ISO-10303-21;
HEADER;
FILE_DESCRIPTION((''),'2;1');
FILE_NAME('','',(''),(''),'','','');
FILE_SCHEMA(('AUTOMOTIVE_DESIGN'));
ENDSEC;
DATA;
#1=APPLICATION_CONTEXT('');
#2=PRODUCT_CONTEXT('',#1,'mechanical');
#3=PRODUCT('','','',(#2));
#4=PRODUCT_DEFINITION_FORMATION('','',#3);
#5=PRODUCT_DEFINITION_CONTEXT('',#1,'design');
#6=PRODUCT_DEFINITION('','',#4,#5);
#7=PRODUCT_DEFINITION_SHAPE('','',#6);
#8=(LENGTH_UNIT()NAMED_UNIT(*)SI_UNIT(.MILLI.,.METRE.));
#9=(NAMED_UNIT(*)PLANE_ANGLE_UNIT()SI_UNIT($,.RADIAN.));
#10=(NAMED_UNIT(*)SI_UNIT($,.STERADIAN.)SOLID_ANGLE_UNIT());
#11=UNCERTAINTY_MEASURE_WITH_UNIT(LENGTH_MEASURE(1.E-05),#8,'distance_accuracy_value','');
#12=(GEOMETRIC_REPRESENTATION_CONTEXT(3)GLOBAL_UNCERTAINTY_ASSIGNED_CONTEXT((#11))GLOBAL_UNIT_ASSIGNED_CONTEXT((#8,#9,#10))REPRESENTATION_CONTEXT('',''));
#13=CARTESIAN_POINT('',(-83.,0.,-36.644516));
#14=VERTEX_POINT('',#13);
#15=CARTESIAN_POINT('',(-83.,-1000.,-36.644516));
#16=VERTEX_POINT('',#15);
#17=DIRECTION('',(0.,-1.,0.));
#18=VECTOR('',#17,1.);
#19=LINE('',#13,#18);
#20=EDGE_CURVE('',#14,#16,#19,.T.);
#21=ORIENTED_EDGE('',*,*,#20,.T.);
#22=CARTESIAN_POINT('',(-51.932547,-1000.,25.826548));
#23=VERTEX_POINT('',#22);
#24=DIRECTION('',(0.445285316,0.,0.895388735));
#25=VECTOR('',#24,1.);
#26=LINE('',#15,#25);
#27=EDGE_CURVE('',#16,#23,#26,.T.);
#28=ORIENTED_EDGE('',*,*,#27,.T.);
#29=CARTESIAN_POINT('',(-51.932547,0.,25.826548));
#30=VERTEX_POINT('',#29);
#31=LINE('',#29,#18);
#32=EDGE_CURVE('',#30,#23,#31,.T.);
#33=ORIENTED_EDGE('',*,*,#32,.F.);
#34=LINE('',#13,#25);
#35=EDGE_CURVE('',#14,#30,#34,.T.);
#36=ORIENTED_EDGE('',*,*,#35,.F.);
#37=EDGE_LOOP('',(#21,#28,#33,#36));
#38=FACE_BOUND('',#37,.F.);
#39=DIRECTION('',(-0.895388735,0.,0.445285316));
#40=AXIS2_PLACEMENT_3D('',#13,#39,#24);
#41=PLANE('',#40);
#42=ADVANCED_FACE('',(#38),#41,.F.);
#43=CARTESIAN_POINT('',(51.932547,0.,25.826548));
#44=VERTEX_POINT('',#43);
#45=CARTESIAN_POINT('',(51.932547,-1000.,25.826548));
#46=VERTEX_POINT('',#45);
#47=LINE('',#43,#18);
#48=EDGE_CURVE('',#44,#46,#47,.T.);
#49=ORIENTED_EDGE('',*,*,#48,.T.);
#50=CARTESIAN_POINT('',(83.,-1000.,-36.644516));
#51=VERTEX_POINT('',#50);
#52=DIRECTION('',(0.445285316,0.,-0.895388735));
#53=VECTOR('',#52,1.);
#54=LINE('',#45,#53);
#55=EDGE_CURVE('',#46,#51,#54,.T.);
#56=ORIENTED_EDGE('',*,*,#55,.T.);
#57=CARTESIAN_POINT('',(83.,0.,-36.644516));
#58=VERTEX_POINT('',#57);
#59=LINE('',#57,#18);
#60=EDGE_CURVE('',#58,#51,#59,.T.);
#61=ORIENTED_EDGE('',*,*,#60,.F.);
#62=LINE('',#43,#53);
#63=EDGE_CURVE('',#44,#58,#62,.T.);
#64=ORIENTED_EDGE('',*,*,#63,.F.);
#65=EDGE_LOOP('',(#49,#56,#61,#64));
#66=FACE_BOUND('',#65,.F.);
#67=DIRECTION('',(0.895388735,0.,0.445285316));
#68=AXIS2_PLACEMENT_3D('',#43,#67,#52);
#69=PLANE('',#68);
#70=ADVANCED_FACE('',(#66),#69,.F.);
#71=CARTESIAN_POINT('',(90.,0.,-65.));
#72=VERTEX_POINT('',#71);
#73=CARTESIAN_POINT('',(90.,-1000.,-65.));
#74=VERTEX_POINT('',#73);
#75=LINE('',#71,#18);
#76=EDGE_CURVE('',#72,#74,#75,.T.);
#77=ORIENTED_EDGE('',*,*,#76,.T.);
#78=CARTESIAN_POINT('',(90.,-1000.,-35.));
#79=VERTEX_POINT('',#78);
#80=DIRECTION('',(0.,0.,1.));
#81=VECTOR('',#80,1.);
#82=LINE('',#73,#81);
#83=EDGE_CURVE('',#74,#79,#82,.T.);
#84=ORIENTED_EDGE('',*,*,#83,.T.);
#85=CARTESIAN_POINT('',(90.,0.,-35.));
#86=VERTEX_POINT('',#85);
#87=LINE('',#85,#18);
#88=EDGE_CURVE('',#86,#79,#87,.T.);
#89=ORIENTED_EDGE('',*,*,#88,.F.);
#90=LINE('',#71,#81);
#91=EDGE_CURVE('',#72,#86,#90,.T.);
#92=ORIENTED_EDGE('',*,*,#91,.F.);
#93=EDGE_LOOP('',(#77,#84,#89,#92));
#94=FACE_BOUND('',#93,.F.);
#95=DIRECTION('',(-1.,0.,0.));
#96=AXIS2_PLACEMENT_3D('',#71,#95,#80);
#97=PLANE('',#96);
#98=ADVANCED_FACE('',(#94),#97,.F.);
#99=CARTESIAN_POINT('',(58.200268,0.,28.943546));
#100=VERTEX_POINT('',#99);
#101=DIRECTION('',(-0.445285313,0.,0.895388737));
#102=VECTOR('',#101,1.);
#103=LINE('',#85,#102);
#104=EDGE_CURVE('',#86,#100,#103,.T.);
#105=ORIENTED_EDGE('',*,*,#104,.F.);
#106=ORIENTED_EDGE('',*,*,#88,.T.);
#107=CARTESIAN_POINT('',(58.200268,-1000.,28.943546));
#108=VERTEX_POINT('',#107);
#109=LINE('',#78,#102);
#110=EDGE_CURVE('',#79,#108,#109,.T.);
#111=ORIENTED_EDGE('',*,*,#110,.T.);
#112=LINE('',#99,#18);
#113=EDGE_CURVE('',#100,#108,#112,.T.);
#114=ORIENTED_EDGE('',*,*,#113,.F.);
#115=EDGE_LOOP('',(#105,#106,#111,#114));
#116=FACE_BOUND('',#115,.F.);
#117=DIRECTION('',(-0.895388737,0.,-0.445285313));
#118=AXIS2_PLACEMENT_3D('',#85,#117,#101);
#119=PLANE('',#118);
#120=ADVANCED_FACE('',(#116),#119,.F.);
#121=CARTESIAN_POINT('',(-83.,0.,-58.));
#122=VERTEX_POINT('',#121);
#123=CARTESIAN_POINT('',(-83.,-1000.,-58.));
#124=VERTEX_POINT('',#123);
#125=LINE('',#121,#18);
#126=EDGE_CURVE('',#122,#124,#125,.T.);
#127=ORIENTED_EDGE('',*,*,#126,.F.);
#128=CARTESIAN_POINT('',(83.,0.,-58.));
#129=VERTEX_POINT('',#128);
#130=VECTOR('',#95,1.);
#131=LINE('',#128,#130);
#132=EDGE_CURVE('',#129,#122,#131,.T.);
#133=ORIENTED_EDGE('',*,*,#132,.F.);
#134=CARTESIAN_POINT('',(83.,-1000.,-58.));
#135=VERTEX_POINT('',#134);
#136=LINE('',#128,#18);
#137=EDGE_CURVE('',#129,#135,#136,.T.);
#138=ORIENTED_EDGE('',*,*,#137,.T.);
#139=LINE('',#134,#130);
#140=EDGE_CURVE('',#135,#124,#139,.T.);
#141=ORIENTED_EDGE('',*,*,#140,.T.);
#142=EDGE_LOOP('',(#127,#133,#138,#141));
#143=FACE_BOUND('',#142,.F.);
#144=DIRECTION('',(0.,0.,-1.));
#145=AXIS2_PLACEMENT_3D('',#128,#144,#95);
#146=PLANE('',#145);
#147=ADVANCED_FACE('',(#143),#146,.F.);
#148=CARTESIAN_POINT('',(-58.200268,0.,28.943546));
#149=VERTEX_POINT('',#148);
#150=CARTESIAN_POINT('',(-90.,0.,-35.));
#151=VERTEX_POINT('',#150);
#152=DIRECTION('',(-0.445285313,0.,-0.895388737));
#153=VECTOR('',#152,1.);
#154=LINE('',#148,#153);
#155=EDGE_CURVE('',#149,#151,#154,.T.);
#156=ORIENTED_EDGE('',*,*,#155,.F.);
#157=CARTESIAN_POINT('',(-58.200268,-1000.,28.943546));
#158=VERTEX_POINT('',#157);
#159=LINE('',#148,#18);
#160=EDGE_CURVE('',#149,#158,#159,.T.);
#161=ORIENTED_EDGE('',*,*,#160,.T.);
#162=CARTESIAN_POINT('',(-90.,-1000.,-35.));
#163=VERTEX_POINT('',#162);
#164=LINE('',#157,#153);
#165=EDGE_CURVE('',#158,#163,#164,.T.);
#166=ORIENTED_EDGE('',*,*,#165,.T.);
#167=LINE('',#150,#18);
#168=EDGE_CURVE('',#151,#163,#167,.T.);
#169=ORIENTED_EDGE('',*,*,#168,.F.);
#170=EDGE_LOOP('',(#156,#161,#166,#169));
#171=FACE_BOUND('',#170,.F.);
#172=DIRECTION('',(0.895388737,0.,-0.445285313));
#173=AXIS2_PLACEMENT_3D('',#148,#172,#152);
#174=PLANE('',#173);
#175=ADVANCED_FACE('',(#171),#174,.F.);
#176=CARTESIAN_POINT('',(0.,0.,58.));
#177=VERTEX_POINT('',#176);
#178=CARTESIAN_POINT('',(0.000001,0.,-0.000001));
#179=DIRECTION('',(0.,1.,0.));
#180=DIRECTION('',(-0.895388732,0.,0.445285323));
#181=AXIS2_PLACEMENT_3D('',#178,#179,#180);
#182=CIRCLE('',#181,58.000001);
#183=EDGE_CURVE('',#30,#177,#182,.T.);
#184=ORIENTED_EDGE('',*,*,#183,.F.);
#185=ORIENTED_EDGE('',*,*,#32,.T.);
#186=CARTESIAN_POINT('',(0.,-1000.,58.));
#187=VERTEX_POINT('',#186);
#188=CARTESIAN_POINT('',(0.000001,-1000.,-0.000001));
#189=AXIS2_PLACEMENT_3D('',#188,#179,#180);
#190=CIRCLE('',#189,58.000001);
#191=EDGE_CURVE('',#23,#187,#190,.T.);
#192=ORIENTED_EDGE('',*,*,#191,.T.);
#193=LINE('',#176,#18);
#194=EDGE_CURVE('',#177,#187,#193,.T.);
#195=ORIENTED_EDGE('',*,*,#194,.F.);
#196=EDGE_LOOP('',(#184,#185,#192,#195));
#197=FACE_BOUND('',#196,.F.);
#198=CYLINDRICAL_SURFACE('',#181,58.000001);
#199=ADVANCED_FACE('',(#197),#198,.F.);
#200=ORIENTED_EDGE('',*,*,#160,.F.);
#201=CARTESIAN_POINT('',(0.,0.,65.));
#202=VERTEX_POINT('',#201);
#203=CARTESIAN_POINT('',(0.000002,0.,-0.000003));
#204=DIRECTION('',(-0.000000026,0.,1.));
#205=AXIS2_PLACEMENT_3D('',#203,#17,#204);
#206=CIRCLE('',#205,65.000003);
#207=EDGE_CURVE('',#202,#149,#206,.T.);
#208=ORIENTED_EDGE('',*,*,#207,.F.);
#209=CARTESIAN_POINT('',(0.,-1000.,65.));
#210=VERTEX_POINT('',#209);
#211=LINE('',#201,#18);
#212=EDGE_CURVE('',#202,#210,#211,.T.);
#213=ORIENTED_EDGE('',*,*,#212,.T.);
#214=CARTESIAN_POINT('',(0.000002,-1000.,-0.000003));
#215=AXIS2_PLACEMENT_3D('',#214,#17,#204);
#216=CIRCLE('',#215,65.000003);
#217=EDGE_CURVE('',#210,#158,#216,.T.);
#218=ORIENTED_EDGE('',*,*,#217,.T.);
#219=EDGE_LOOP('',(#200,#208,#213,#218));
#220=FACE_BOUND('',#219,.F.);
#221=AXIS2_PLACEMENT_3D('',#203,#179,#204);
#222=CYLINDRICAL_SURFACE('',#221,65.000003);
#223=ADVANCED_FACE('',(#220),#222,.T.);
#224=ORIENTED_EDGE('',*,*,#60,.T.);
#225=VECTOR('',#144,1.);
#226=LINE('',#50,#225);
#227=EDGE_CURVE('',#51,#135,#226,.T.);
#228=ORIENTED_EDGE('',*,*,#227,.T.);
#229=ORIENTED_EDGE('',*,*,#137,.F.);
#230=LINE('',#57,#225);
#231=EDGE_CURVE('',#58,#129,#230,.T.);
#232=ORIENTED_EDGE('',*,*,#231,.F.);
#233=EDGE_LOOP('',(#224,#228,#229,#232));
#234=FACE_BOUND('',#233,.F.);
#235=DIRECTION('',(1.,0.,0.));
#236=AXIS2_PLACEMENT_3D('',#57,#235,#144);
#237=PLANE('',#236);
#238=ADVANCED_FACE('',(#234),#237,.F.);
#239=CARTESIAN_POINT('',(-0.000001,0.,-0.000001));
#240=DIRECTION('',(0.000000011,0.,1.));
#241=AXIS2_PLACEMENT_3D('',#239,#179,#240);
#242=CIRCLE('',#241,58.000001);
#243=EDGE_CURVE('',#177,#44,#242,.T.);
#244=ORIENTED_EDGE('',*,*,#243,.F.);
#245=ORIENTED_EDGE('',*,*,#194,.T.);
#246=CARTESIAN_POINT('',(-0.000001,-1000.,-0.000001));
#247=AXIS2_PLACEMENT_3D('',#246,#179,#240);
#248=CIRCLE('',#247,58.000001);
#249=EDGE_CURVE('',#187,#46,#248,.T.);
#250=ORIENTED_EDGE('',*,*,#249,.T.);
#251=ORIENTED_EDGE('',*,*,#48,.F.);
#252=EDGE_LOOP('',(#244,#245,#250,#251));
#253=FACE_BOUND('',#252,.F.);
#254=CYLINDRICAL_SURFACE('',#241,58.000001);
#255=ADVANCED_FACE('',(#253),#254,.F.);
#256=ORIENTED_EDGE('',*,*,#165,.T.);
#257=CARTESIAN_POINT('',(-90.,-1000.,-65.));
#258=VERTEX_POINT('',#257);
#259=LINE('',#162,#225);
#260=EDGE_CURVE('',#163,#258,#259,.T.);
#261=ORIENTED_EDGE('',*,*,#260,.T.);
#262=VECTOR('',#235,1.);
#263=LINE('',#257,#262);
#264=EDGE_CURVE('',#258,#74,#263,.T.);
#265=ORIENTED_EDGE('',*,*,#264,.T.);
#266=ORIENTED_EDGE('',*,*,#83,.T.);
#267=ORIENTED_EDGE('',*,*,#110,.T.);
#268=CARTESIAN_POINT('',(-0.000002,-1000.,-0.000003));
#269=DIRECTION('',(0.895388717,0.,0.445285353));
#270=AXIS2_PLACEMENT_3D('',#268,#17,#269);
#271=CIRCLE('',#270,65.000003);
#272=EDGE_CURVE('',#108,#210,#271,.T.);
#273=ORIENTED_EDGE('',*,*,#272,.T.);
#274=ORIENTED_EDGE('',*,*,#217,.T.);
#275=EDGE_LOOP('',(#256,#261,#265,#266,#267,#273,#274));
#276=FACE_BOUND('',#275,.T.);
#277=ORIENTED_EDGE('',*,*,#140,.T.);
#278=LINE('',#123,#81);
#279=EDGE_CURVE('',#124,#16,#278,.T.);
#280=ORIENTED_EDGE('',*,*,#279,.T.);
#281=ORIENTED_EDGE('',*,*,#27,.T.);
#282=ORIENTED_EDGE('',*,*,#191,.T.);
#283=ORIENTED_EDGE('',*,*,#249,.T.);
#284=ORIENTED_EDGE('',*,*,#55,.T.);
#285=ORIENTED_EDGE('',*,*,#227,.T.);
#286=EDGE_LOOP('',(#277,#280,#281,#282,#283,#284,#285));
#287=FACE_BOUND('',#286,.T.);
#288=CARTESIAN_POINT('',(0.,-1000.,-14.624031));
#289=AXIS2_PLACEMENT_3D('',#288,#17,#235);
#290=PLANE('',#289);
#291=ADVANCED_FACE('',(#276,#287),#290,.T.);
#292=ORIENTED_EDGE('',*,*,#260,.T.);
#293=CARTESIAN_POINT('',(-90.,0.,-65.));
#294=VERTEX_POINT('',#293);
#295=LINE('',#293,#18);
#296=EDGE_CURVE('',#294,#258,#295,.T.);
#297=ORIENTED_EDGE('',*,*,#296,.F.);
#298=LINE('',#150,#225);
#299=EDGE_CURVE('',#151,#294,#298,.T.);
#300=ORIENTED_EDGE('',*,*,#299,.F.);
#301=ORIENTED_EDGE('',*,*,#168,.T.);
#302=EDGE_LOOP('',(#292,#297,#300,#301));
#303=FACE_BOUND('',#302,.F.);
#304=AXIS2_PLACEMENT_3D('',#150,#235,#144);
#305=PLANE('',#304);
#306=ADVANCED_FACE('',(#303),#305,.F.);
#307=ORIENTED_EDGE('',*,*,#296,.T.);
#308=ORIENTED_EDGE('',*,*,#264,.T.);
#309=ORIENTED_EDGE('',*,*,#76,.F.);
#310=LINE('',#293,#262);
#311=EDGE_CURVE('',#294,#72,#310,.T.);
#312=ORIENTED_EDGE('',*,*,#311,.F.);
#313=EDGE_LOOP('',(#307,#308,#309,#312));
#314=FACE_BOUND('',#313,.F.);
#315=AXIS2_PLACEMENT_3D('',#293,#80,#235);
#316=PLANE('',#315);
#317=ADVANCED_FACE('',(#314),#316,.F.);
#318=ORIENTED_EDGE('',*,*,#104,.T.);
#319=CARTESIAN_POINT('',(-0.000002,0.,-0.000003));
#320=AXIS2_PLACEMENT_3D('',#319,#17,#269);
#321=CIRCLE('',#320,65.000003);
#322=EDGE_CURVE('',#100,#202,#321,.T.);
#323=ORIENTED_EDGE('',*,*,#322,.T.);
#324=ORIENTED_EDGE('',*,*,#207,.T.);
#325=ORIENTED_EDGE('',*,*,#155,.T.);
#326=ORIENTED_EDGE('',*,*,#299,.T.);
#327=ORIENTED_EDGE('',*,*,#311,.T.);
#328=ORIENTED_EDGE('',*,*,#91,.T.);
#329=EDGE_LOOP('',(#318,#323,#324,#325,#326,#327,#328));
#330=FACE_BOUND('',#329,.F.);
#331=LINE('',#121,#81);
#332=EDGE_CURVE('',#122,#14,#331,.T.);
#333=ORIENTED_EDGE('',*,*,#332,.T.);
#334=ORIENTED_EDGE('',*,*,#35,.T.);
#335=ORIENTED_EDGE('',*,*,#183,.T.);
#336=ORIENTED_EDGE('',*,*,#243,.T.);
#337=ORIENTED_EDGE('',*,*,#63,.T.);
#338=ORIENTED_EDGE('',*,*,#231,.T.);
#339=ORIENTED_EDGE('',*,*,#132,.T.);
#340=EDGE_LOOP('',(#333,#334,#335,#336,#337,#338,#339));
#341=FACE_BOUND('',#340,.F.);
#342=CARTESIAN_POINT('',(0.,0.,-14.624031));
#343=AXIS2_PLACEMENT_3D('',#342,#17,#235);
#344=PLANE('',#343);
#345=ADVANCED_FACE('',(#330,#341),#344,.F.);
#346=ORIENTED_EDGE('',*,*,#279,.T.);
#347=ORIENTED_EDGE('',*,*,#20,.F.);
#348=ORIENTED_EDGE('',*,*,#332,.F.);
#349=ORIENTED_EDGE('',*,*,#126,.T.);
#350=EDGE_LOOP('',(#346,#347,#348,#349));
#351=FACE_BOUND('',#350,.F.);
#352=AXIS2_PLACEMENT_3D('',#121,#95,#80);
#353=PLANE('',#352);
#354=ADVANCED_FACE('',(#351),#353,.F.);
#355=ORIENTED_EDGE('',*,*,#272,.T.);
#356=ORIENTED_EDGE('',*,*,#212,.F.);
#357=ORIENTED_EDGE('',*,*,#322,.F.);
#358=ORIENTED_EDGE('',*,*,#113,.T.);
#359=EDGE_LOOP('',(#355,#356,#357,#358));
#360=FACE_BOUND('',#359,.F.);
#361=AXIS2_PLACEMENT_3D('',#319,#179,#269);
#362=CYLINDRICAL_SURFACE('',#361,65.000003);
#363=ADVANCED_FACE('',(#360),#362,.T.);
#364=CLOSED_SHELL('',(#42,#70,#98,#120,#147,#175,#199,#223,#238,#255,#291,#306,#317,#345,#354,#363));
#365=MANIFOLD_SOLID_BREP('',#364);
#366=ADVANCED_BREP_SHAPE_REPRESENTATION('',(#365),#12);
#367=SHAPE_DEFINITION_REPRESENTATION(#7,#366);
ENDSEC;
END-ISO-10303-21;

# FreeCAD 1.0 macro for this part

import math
import FreeCAD as App
import Part
import Sketcher
from FreeCAD import Vector

doc = App.newDocument("Part")
params = doc.addObject("Spreadsheet::Sheet", "Params")
for row, (alias, value) in enumerate([
    ("sketch1_radius", "58.000001 mm"),
    ("sketch1_width", "180 mm"),
    ("sketch1_width2", "166 mm"),
    ("sketch1_height", "30 mm"),
    ("pad1_length", "1000 mm"),
], start=1):
    params.set(f"A{row}", alias)
    params.set(f"B{row}", "=" + value)
    params.setAlias(f"B{row}", alias)

body = doc.addObject("PartDesign::Body", "Body")

# Sketch on XZ plane
sketch1 = body.newObject("Sketcher::SketchObject", "Sketch")
sketch1.AttachmentSupport = (doc.getObject("XZ_Plane"), [""])
sketch1.MapMode = "FlatFace"
sketch1.addGeometry([
    Part.LineSegment(Vector(-90, -65, 0), Vector(90, -65, 0)),  # 0
    Part.LineSegment(Vector(90, -65, 0), Vector(90, -35, 0)),  # 1
    Part.LineSegment(Vector(90, -35, 0), Vector(58, 29, 0)),  # 2
    Part.ArcOfCircle(Part.Circle(Vector(0, 0, 0), Vector(0, 0, 1), 65), math.radians(26), math.radians(90)),  # 3
    Part.ArcOfCircle(Part.Circle(Vector(0, 0, 0), Vector(0, 0, 1), 65), math.radians(90), math.radians(154)),  # 4
    Part.LineSegment(Vector(-58, 29, 0), Vector(-90, -35, 0)),  # 5
    Part.LineSegment(Vector(-90, -35, 0), Vector(-90, -65, 0)),  # 6
    Part.ArcOfCircle(Part.Circle(Vector(0, 0, 0), Vector(0, 0, 1), 58), math.radians(90), math.radians(154)),  # 7
    Part.ArcOfCircle(Part.Circle(Vector(0, 0, 0), Vector(0, 0, 1), 58), math.radians(26), math.radians(90)),  # 8
    Part.LineSegment(Vector(52, 26, 0), Vector(83, -37, 0)),  # 9
    Part.LineSegment(Vector(83, -37, 0), Vector(83, -58, 0)),  # 10
    Part.LineSegment(Vector(83, -58, 0), Vector(-83, -58, 0)),  # 11
    Part.LineSegment(Vector(-83, -58, 0), Vector(-83, -37, 0)),  # 12
    Part.LineSegment(Vector(-83, -37, 0), Vector(-52, 26, 0)),  # 13
], False)
sketch1.addConstraint([
    Sketcher.Constraint("Coincident", 0, 2, 1, 1),
    Sketcher.Constraint("Coincident", 1, 2, 2, 1),
    Sketcher.Constraint("Tangent", 2, 2, 3, 1),
    Sketcher.Constraint("Tangent", 3, 2, 4, 1),
    Sketcher.Constraint("Tangent", 4, 2, 5, 1),
    Sketcher.Constraint("Coincident", 5, 2, 6, 1),
    Sketcher.Constraint("Coincident", 6, 2, 0, 1),
    Sketcher.Constraint("Tangent", 7, 1, 8, 2),
    Sketcher.Constraint("Tangent", 8, 1, 9, 1),
    Sketcher.Constraint("Coincident", 9, 2, 10, 1),
    Sketcher.Constraint("Coincident", 10, 2, 11, 1),
    Sketcher.Constraint("Coincident", 11, 2, 12, 1),
    Sketcher.Constraint("Coincident", 12, 2, 13, 1),
    Sketcher.Constraint("Tangent", 13, 2, 7, 2),
    Sketcher.Constraint("Horizontal", 0),
    Sketcher.Constraint("Vertical", 1),
    Sketcher.Constraint("Vertical", 6),
    Sketcher.Constraint("Vertical", 10),
    Sketcher.Constraint("Horizontal", 11),
    Sketcher.Constraint("Vertical", 12),
    Sketcher.Constraint("Coincident", 3, 3, -1, 1),
    Sketcher.Constraint("Coincident", 7, 3, -1, 1),
    Sketcher.Constraint("Equal", 3, 4),
    Sketcher.Constraint("Equal", 7, 8),
    Sketcher.Constraint("Symmetric", 1, 2, 5, 2, -2),
    Sketcher.Constraint("Symmetric", 9, 2, 12, 2, -2),
    Sketcher.Constraint("PointOnObject", 3, 2, -2),
    Sketcher.Constraint("PointOnObject", 7, 1, -2),
    Sketcher.Constraint("Parallel", 2, 9),
    Sketcher.Constraint("Radius", 7, 58.000001),
    Sketcher.Constraint("DistanceX", 0, 1, 0, 2, 180.0),
    Sketcher.Constraint("DistanceX", 11, 2, 11, 1, 166.0),
    Sketcher.Constraint("DistanceY", 1, 1, 1, 2, 30.0),
    Sketcher.Constraint("DistanceY", 0, 2, -1, 1, 65.0),
    Sketcher.Constraint("DistanceY", -1, 1, 3, 2, 65.0),
    Sketcher.Constraint("DistanceY", 10, 2, -1, 1, 58.0),
])
sketch1.setExpression("Constraints[29]", "Params.sketch1_radius")
sketch1.setExpression("Constraints[30]", "Params.sketch1_width")
sketch1.setExpression("Constraints[31]", "Params.sketch1_width2")
sketch1.setExpression("Constraints[32]", "Params.sketch1_height")
pad1 = body.newObject("PartDesign::Pad", "Pad")
pad1.Profile = sketch1
pad1.setExpression("Length", "Params.pad1_length")

doc.recompute()
